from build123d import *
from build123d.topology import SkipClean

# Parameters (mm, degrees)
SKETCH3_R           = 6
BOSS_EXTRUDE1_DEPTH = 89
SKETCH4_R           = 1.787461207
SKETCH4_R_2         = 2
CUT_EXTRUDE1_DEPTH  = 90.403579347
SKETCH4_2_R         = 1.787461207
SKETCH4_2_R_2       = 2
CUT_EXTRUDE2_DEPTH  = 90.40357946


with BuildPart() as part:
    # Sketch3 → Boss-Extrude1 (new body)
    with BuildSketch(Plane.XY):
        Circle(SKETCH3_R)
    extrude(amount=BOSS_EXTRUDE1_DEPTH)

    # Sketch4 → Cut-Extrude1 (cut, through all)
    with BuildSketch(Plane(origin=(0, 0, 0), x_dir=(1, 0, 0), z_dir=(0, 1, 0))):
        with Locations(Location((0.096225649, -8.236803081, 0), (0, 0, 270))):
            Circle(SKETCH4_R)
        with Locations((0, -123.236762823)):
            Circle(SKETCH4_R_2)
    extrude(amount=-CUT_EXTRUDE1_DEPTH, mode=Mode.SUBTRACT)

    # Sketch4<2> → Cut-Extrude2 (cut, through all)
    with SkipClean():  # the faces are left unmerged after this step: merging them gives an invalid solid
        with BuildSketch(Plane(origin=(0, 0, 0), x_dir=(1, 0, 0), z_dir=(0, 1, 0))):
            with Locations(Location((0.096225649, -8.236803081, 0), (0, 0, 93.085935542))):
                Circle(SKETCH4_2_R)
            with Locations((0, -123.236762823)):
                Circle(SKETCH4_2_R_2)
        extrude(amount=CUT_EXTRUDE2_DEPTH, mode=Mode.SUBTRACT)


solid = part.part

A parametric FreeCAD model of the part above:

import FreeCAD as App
import Part
import Sketcher
from FreeCAD import Vector
Q = App.Units.Quantity

doc = App.newDocument("Part")
body = doc.addObject("PartDesign::Body", "Body")

# Sketch on XY plane
sketch1 = body.newObject("Sketcher::SketchObject", "Sketch")
sketch1.AttachmentSupport = (doc.getObject("XY_Plane"), [""])
sketch1.MapMode = "FlatFace"
sketch1.addGeometry(Part.Circle(Vector(0, 0, 0), Vector(0, 0, 1), 6), False)
sketch1.addConstraint(Sketcher.Constraint("Coincident", 0, 3, -1, 1))
sketch1.addConstraint(Sketcher.Constraint("Diameter", 0, Q("12 mm")))
pad1 = body.newObject("PartDesign::Pad", "Pad")
pad1.Profile = sketch1
pad1.Length = 89

# Sketch on XZ plane
sketch2 = body.newObject("Sketcher::SketchObject", "Sketch001")
sketch2.AttachmentSupport = (doc.getObject("XZ_Plane"), [""])
sketch2.MapMode = "FlatFace"
sketch2.addGeometry(Part.Circle(Vector(0.1, 8.2, 0), Vector(0, 0, 1), 1.8), False)
sketch2.addGeometry(Part.Circle(Vector(0, 123.2, 0), Vector(0, 0, 1), 2), False)
sketch2.addConstraint(Sketcher.Constraint("PointOnObject", 1, 3, -2))
sketch2.addConstraint(Sketcher.Constraint("Diameter", 1, Q("4 mm")))
sketch2.addConstraint(Sketcher.Constraint("Diameter", 0, Q("3.574922 mm")))
sketch2.addConstraint(Sketcher.Constraint("DistanceY", 0, 3, 1, 3, Q("114.99996 mm")))
sketch2.addConstraint(Sketcher.Constraint("DistanceX", -1, 1, 0, 3, Q("0.096226 mm")))
sketch2.addConstraint(Sketcher.Constraint("DistanceY", -1, 1, 0, 3, Q("8.236803 mm")))
pocket1 = body.newObject("PartDesign::Pocket", "Pocket")
pocket1.Profile = sketch2
pocket1.Type = "ThroughAll"
pocket1.Reversed = True

# Sketch on XZ plane
sketch3 = body.newObject("Sketcher::SketchObject", "Sketch002")
sketch3.AttachmentSupport = (doc.getObject("XZ_Plane"), [""])
sketch3.MapMode = "FlatFace"
sketch3.addGeometry(Part.Circle(Vector(0.1, 8.2, 0), Vector(0, 0, 1), 1.8), False)
sketch3.addGeometry(Part.Circle(Vector(0, 123.2, 0), Vector(0, 0, 1), 2), False)
sketch3.addConstraint(Sketcher.Constraint("PointOnObject", 1, 3, -2))
sketch3.addConstraint(Sketcher.Constraint("Diameter", 1, Q("4 mm")))
sketch3.addConstraint(Sketcher.Constraint("Diameter", 0, Q("3.574922 mm")))
sketch3.addConstraint(Sketcher.Constraint("DistanceY", 0, 3, 1, 3, Q("114.99996 mm")))
sketch3.addConstraint(Sketcher.Constraint("DistanceX", -1, 1, 0, 3, Q("0.096226 mm")))
sketch3.addConstraint(Sketcher.Constraint("DistanceY", -1, 1, 0, 3, Q("8.236803 mm")))
pocket2 = body.newObject("PartDesign::Pocket", "Pocket001")
pocket2.Profile = sketch3
pocket2.Type = "ThroughAll"

doc.recompute()
